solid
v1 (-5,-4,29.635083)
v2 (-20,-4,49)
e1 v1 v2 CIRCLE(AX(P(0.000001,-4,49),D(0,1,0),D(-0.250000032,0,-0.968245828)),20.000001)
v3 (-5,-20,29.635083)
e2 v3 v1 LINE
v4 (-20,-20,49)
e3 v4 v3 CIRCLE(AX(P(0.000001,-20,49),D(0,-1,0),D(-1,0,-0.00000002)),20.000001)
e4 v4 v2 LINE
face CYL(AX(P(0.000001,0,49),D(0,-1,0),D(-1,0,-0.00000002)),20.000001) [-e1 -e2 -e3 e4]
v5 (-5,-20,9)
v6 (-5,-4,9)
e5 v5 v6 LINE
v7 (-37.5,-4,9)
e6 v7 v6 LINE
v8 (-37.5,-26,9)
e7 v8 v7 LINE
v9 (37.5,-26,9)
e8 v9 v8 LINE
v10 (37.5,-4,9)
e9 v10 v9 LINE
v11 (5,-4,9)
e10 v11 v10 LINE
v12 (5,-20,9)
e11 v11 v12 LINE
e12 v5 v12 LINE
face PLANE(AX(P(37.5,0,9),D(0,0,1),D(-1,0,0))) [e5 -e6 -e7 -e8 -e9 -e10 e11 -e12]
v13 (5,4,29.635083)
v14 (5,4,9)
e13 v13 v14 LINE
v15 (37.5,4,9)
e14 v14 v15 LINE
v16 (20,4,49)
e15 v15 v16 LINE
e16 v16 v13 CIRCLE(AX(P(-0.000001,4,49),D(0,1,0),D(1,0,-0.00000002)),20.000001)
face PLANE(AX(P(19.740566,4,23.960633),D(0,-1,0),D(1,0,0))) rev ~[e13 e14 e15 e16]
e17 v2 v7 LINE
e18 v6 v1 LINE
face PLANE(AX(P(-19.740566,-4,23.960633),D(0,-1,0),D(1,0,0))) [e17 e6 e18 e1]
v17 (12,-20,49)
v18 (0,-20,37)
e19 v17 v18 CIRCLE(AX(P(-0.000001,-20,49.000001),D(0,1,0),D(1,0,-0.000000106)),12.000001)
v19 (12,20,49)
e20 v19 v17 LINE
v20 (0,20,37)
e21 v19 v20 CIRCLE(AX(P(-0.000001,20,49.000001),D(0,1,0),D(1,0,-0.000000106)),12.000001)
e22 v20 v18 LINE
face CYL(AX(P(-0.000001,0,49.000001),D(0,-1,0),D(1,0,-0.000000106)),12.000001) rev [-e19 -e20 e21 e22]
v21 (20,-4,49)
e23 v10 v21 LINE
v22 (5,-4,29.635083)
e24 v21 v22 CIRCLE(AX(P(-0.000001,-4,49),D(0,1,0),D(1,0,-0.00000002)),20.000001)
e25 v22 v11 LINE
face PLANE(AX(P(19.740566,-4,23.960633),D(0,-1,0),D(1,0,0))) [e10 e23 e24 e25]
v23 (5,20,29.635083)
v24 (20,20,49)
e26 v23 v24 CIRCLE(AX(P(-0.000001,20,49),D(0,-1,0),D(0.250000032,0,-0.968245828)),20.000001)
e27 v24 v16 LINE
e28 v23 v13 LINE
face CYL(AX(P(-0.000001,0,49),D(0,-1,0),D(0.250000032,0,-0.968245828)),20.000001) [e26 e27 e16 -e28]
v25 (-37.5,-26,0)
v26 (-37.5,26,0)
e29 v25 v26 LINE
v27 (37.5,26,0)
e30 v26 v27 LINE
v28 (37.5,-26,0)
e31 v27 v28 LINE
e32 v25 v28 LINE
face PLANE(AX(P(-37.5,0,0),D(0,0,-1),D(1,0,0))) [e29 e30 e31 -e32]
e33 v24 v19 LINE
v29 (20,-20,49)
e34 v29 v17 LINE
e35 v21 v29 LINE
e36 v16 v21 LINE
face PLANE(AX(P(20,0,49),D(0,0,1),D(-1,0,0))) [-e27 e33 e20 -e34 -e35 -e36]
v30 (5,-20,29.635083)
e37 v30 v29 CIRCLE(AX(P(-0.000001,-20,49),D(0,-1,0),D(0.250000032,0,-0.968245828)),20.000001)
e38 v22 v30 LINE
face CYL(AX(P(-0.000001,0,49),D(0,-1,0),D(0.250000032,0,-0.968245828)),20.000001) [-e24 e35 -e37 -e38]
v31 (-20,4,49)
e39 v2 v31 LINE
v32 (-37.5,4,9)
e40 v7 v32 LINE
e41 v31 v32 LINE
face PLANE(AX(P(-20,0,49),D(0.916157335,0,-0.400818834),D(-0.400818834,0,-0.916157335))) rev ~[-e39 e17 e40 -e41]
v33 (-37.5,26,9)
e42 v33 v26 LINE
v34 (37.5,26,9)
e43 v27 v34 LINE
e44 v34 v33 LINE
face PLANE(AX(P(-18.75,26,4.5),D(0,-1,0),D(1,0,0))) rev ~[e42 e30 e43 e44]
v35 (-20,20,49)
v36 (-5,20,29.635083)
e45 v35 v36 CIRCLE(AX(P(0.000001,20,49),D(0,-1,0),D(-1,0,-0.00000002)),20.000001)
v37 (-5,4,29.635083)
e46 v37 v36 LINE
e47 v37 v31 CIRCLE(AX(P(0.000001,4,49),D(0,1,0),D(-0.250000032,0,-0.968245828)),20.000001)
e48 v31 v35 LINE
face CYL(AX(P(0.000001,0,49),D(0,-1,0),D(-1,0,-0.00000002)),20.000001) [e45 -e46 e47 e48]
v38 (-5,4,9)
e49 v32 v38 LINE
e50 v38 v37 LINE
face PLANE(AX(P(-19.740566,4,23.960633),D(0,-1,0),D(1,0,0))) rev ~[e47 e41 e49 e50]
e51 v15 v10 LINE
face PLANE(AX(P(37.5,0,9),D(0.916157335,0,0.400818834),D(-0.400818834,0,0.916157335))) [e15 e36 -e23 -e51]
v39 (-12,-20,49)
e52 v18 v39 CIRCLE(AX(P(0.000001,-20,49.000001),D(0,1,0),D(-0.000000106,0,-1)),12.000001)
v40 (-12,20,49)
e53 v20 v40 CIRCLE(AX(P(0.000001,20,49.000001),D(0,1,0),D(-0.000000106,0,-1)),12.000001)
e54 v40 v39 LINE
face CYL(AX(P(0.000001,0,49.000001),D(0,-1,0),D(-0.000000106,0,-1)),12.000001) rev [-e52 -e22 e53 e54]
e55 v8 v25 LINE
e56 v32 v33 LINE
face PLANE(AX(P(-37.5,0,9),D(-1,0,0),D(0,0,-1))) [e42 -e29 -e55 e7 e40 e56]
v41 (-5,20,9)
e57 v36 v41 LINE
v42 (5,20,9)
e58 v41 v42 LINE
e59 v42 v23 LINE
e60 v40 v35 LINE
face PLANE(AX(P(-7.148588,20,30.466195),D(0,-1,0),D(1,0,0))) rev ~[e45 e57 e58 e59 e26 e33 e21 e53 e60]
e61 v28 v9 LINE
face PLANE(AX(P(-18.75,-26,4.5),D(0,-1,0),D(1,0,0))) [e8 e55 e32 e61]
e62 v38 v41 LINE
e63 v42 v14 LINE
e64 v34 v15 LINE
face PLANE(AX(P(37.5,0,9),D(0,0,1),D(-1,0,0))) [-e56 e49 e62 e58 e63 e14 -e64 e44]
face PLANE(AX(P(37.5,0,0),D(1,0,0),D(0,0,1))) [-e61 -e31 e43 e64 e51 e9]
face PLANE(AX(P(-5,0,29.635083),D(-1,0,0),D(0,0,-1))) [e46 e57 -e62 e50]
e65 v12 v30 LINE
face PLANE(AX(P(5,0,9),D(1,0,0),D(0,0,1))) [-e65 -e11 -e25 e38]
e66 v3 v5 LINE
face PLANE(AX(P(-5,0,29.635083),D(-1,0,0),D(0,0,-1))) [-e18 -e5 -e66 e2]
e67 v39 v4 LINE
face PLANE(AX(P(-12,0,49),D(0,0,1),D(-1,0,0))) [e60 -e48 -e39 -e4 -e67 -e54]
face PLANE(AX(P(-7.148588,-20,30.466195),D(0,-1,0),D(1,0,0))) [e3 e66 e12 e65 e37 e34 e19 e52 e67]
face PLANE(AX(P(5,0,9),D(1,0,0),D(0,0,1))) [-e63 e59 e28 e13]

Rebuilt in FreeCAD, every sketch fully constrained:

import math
import FreeCAD as App
import Part
import Sketcher


def add_polygon(sketch, points):
    """Adds a closed chain of lines whose ends are joined by coincident constraints."""
    first, n = sketch.GeometryCount, len(points)
    for a, b in zip(points, points[1:] + points[:1]):
        sketch.addGeometry(Part.LineSegment(App.Vector(*a, 0), App.Vector(*b, 0)), False)
    for i in range(n):
        sketch.addConstraint(Sketcher.Constraint("Coincident", first + i, 2, first + (i + 1) % n, 1))

doc = App.newDocument("Part")
body = doc.addObject("PartDesign::Body", "Body")

# Sketch on XZ plane
sketch1 = doc.addObject("Sketcher::SketchObject", "Sketch")
body.addObject(sketch1)
sketch1.AttachmentSupport = (doc.XZ_Plane, [""])
sketch1.MapMode = "FlatFace"
add_polygon(sketch1, [(-37.5, 0), (37.5, 0), (37.5, 9), (-37.5, 9)])  # lines 0-3
sketch1.addConstraint(Sketcher.Constraint("Horizontal", 0))
sketch1.addConstraint(Sketcher.Constraint("Vertical", 1))
sketch1.addConstraint(Sketcher.Constraint("Horizontal", 2))
sketch1.addConstraint(Sketcher.Constraint("Vertical", 3))
sketch1.addConstraint(Sketcher.Constraint("Symmetric", 0, 2, 3, 2, -1, 1))
sketch1.addConstraint(Sketcher.Constraint("DistanceX", 0, 1, 0, 2, 75.0))
sketch1.addConstraint(Sketcher.Constraint("DistanceY", 1, 1, 1, 2, 9.0))
pad1 = doc.addObject("PartDesign::Pad", "Pad")
body.addObject(pad1)
pad1.Profile = sketch1
pad1.Length = 52
pad1.Midplane = True

# Sketch on XZ plane
sketch2 = doc.addObject("Sketcher::SketchObject", "Sketch001")
body.addObject(sketch2)
sketch2.AttachmentSupport = (doc.XZ_Plane, [""])
sketch2.MapMode = "FlatFace"
sketch2.addGeometry(Part.LineSegment(App.Vector(-5, 9, 0), App.Vector(5, 9, 0)), False)
sketch2.addGeometry(Part.LineSegment(App.Vector(5, 9, 0), App.Vector(5, 29.635083, 0)), False)
sketch2.addGeometry(Part.ArcOfCircle(Part.Circle(App.Vector(-0.000001, 49, 0), App.Vector(0, 0, 1), 20.000001), math.radians(-75.522486), math.radians(-0.000001)), False)
sketch2.addGeometry(Part.LineSegment(App.Vector(20, 49, 0), App.Vector(12, 49, 0)), False)
sketch2.addGeometry(Part.ArcOfCircle(Part.Circle(App.Vector(-0.000001, 49.000001, 0), App.Vector(0, 0, 1), 12.000001), math.radians(-89.999994), math.radians(-0.000006)), False)
sketch2.addGeometry(Part.ArcOfCircle(Part.Circle(App.Vector(0.000001, 49.000001, 0), App.Vector(0, 0, 1), 12.000001), math.radians(-179.999994), math.radians(-90.000006)), False)
sketch2.addGeometry(Part.LineSegment(App.Vector(-12, 49, 0), App.Vector(-20, 49, 0)), False)
sketch2.addGeometry(Part.ArcOfCircle(Part.Circle(App.Vector(0.000001, 49, 0), App.Vector(0, 0, 1), 20.000001), math.radians(-179.999999), math.radians(-104.477514)), False)
sketch2.addGeometry(Part.LineSegment(App.Vector(-5, 29.635083, 0), App.Vector(-5, 9, 0)), False)
sketch2.addConstraint(Sketcher.Constraint("Coincident", 0, 2, 1, 1))
sketch2.addConstraint(Sketcher.Constraint("Coincident", 1, 2, 2, 1))
sketch2.addConstraint(Sketcher.Constraint("Coincident", 2, 2, 3, 1))
sketch2.addConstraint(Sketcher.Constraint("Coincident", 3, 2, 4, 2))
sketch2.addConstraint(Sketcher.Constraint("Tangent", 4, 1, 5, 2))
sketch2.addConstraint(Sketcher.Constraint("Coincident", 5, 1, 6, 1))
sketch2.addConstraint(Sketcher.Constraint("Coincident", 6, 2, 7, 1))
sketch2.addConstraint(Sketcher.Constraint("Coincident", 7, 2, 8, 1))
sketch2.addConstraint(Sketcher.Constraint("Coincident", 8, 2, 0, 1))
sketch2.addConstraint(Sketcher.Constraint("Horizontal", 0))
sketch2.addConstraint(Sketcher.Constraint("Vertical", 1))
sketch2.addConstraint(Sketcher.Constraint("Horizontal", 3))
sketch2.addConstraint(Sketcher.Constraint("Horizontal", 6))
sketch2.addConstraint(Sketcher.Constraint("Vertical", 8))
sketch2.addConstraint(Sketcher.Constraint("Coincident", 4, 3, 2, 3))
sketch2.addConstraint(Sketcher.Constraint("Coincident", 7, 3, 2, 3))
sketch2.addConstraint(Sketcher.Constraint("Equal", 4, 5))
sketch2.addConstraint(Sketcher.Constraint("Equal", 2, 7))
sketch2.addConstraint(Sketcher.Constraint("Symmetric", 3, 2, 5, 1, -2))
sketch2.addConstraint(Sketcher.Constraint("PointOnObject", 4, 1, -2))
sketch2.addConstraint(Sketcher.Constraint("Horizontal", 7, 3, 2, 2))
sketch2.addConstraint(Sketcher.Constraint("Horizontal", 1, 2, 7, 2))
sketch2.addConstraint(Sketcher.Constraint("Radius", 2, 20.000001))
sketch2.addConstraint(Sketcher.Constraint("Radius", 4, 12.000001))
sketch2.addConstraint(Sketcher.Constraint("DistanceX", 0, 1, 0, 2, 10.0))
sketch2.addConstraint(Sketcher.Constraint("DistanceY", -1, 1, 2, 3, 49.0))
sketch2.addConstraint(Sketcher.Constraint("DistanceY", -1, 1, 0, 2, 9.0))
pad2 = doc.addObject("PartDesign::Pad", "Pad001")
body.addObject(pad2)
pad2.Profile = sketch2
pad2.Length = 40
pad2.Midplane = True

# Sketch on XZ plane
sketch3 = doc.addObject("Sketcher::SketchObject", "Sketch002")
body.addObject(sketch3)
sketch3.AttachmentSupport = (doc.XZ_Plane, [""])
sketch3.MapMode = "FlatFace"
sketch3.addGeometry(Part.LineSegment(App.Vector(-37.5, 9, 0), App.Vector(-5, 9, 0)), False)
sketch3.addGeometry(Part.LineSegment(App.Vector(-5, 9, 0), App.Vector(-5, 29.635083, 0)), False)
sketch3.addGeometry(Part.ArcOfCircle(Part.Circle(App.Vector(0.000001, 49, 0), App.Vector(0, 0, 1), 20.000001), math.radians(-179.999999), math.radians(-104.477514)), False)
sketch3.addGeometry(Part.LineSegment(App.Vector(-20, 49, 0), App.Vector(-37.5, 9, 0)), False)
sketch3.addGeometry(Part.LineSegment(App.Vector(5, 9, 0), App.Vector(37.5, 9, 0)), False)
sketch3.addGeometry(Part.LineSegment(App.Vector(37.5, 9, 0), App.Vector(20, 49, 0)), False)
sketch3.addGeometry(Part.ArcOfCircle(Part.Circle(App.Vector(-0.000001, 49, 0), App.Vector(0, 0, 1), 20.000001), math.radians(-75.522486), math.radians(-0.000001)), False)
sketch3.addGeometry(Part.LineSegment(App.Vector(5, 29.635083, 0), App.Vector(5, 9, 0)), False)
sketch3.addConstraint(Sketcher.Constraint("Coincident", 0, 2, 1, 1))
sketch3.addConstraint(Sketcher.Constraint("Coincident", 1, 2, 2, 2))
sketch3.addConstraint(Sketcher.Constraint("Coincident", 2, 1, 3, 1))
sketch3.addConstraint(Sketcher.Constraint("Coincident", 3, 2, 0, 1))
sketch3.addConstraint(Sketcher.Constraint("Coincident", 4, 2, 5, 1))
sketch3.addConstraint(Sketcher.Constraint("Coincident", 5, 2, 6, 2))
sketch3.addConstraint(Sketcher.Constraint("Coincident", 6, 1, 7, 1))
sketch3.addConstraint(Sketcher.Constraint("Coincident", 7, 2, 4, 1))
sketch3.addConstraint(Sketcher.Constraint("Horizontal", 0))
sketch3.addConstraint(Sketcher.Constraint("Vertical", 1))
sketch3.addConstraint(Sketcher.Constraint("Horizontal", 4))
sketch3.addConstraint(Sketcher.Constraint("Vertical", 7))
sketch3.addConstraint(Sketcher.Constraint("Coincident", 6, 3, 2, 3))
sketch3.addConstraint(Sketcher.Constraint("Equal", 2, 6))
sketch3.addConstraint(Sketcher.Constraint("Symmetric", 3, 2, 4, 2, -2))
sketch3.addConstraint(Sketcher.Constraint("Symmetric", 2, 1, 5, 2, -2))
sketch3.addConstraint(Sketcher.Constraint("Horizontal", 6, 3, 2, 1))
sketch3.addConstraint(Sketcher.Constraint("Horizontal", 1, 2, 6, 1))
sketch3.addConstraint(Sketcher.Constraint("Radius", 2, 20.000001))
sketch3.addConstraint(Sketcher.Constraint("DistanceX", 0, 1, 0, 2, 32.5))
sketch3.addConstraint(Sketcher.Constraint("DistanceY", -1, 1, 2, 3, 49.0))
sketch3.addConstraint(Sketcher.Constraint("DistanceX", 0, 2, -1, 1, 5.0))
sketch3.addConstraint(Sketcher.Constraint("DistanceY", -1, 1, 0, 2, 9.0))
pad3 = doc.addObject("PartDesign::Pad", "Pad002")
body.addObject(pad3)
pad3.Profile = sketch3
pad3.Length = 8
pad3.Midplane = True

doc.recompute()
